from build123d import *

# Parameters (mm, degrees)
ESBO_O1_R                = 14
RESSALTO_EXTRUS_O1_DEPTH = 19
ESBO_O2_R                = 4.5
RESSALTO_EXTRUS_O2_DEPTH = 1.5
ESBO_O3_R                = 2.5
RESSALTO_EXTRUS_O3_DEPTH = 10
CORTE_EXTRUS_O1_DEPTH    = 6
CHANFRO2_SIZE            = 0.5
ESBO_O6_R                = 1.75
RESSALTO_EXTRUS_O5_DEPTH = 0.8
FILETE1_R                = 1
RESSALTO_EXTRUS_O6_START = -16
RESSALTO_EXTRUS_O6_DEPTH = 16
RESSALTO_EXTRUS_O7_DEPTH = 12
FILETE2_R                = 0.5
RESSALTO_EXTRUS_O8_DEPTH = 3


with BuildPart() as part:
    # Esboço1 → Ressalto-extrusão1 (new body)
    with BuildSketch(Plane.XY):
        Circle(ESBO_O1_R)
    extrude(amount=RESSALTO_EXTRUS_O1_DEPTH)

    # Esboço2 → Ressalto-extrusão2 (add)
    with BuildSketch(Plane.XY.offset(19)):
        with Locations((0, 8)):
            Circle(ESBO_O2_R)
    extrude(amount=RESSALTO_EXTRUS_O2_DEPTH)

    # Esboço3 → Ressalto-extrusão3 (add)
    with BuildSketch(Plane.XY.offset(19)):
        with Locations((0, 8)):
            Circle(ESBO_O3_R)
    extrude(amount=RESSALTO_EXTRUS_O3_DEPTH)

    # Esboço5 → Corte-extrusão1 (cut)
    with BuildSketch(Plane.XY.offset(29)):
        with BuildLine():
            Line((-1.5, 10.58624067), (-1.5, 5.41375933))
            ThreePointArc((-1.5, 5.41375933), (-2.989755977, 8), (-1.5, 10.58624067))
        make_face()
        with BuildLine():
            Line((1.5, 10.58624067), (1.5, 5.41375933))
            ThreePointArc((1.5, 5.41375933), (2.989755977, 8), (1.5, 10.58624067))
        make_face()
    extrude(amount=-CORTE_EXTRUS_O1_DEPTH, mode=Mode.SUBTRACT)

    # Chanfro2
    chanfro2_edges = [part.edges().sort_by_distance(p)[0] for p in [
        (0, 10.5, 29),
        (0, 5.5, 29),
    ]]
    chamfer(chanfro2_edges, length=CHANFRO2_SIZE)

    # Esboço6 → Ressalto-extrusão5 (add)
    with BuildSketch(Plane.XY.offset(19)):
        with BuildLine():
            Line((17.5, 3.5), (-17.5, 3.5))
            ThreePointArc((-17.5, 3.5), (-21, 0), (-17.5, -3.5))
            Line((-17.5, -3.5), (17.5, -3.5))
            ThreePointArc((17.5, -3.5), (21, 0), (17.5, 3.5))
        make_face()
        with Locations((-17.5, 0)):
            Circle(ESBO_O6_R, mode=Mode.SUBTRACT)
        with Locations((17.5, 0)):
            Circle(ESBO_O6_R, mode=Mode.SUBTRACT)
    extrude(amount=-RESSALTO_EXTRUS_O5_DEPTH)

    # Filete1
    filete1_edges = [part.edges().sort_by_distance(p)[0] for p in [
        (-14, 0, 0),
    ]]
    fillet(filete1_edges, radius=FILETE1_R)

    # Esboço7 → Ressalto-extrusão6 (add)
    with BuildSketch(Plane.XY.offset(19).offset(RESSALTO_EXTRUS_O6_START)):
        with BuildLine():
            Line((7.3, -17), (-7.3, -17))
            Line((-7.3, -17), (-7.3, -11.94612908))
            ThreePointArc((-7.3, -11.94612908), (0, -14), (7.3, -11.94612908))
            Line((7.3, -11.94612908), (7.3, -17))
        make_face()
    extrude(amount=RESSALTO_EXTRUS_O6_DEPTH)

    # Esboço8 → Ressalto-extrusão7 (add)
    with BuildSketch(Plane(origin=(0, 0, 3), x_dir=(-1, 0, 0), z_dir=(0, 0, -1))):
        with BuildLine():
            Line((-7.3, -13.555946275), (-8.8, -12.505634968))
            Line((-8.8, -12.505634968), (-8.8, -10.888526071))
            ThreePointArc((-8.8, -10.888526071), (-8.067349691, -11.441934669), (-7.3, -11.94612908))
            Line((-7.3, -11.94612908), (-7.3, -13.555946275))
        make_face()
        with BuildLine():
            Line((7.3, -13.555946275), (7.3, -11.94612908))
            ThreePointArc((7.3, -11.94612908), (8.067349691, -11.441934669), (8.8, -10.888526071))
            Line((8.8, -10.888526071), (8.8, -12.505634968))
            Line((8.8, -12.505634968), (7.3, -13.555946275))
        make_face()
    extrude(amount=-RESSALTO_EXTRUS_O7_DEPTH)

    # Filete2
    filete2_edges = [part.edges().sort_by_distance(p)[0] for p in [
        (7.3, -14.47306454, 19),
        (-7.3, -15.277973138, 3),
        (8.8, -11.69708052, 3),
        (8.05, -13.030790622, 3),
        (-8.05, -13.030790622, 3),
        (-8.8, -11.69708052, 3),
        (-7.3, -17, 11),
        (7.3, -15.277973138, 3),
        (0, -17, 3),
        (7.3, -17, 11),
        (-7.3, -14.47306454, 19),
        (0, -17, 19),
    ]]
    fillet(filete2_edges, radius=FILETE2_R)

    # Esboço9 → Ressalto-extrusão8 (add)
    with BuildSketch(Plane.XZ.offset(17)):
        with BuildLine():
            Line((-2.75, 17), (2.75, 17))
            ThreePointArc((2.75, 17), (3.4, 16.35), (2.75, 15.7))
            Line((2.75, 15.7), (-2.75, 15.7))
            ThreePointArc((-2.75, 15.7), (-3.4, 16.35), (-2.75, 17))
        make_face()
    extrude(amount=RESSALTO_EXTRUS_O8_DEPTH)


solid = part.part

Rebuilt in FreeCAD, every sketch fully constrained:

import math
import FreeCAD as App
import Part
import Sketcher
from FreeCAD import Vector
Q = App.Units.Quantity


def edges_at(feature, points):
    """Names of the edges that pass closest to the given points."""
    edges = feature.Shape.Edges
    near = lambda p: min(range(len(edges)), key=lambda i: edges[i].distToShape(Part.Vertex(*p))[0])
    return sorted({f"Edge{near(p) + 1}" for p in points})

doc = App.newDocument("Part")
body = doc.addObject("PartDesign::Body", "Body")

sketch1 = body.newObject("Sketcher::SketchObject", "Sketch")
sketch1.AttachmentSupport = (doc.getObject("XY_Plane"), [""])
sketch1.MapMode = "FlatFace"
sketch1.addGeometry(Part.Circle(Vector(0, 0, 0), Vector(0, 0, 1), 14), False)
sketch1.addConstraint(Sketcher.Constraint("Coincident", 0, 3, -1, 1))
sketch1.addConstraint(Sketcher.Constraint("Diameter", 0, Q("28 mm")))
pad1 = body.newObject("PartDesign::Pad", "Pad")
pad1.Profile = sketch1
pad1.Length = 19

sketch2 = body.newObject("Sketcher::SketchObject", "Sketch001")
sketch2.AttachmentSupport = (doc.getObject("XY_Plane"), [""])
sketch2.MapMode = "FlatFace"
sketch2.AttachmentOffset = App.Placement(Vector(0, 0, 19), App.Rotation())
sketch2.addGeometry(Part.Circle(Vector(0, 8, 0), Vector(0, 0, 1), 4.5), False)
sketch2.addConstraint(Sketcher.Constraint("PointOnObject", 0, 3, -2))
sketch2.addConstraint(Sketcher.Constraint("Diameter", 0, Q("9 mm")))
sketch2.addConstraint(Sketcher.Constraint("DistanceY", -1, 1, 0, 3, Q("8 mm")))
pad2 = body.newObject("PartDesign::Pad", "Pad001")
pad2.Profile = sketch2
pad2.Length = 1.5

sketch3 = body.newObject("Sketcher::SketchObject", "Sketch002")
sketch3.AttachmentSupport = (doc.getObject("XY_Plane"), [""])
sketch3.MapMode = "FlatFace"
sketch3.AttachmentOffset = App.Placement(Vector(0, 0, 19), App.Rotation())
sketch3.addGeometry(Part.Circle(Vector(0, 8, 0), Vector(0, 0, 1), 2.5), False)
sketch3.addConstraint(Sketcher.Constraint("PointOnObject", 0, 3, -2))
sketch3.addConstraint(Sketcher.Constraint("Diameter", 0, Q("5 mm")))
sketch3.addConstraint(Sketcher.Constraint("DistanceY", -1, 1, 0, 3, Q("8 mm")))
pad3 = body.newObject("PartDesign::Pad", "Pad002")
pad3.Profile = sketch3
pad3.Length = 10

sketch4 = body.newObject("Sketcher::SketchObject", "Sketch003")
sketch4.AttachmentSupport = (doc.getObject("XY_Plane"), [""])
sketch4.MapMode = "FlatFace"
sketch4.AttachmentOffset = App.Placement(Vector(0, 0, 29), App.Rotation())
sketch4.addGeometry(Part.LineSegment(Vector(-1.5, 5.413759, 0), Vector(-1.5, 10.586241, 0)), False)
sketch4.addGeometry(Part.ArcOfCircle(Part.Circle(Vector(0, 8, 0), Vector(0, 0, 1), 2.989756), math.radians(120.113408), math.radians(239.886592)), False)
sketch4.addGeometry(Part.LineSegment(Vector(1.5, 10.586241, 0), Vector(1.5, 5.413759, 0)), False)
sketch4.addGeometry(Part.ArcOfCircle(Part.Circle(Vector(0, 8, 0), Vector(0, 0, 1), 2.989756), math.radians(-59.886592), math.radians(59.886592)), False)
sketch4.addConstraint(Sketcher.Constraint("Coincident", 0, 1, 1, 2))
sketch4.addConstraint(Sketcher.Constraint("Coincident", 1, 1, 0, 2))
sketch4.addConstraint(Sketcher.Constraint("Coincident", 2, 1, 3, 2))
sketch4.addConstraint(Sketcher.Constraint("Coincident", 3, 1, 2, 2))
sketch4.addConstraint(Sketcher.Constraint("Vertical", 0))
sketch4.addConstraint(Sketcher.Constraint("Vertical", 2))
sketch4.addConstraint(Sketcher.Constraint("Coincident", 3, 3, 1, 3))
sketch4.addConstraint(Sketcher.Constraint("Equal", 1, 3))
sketch4.addConstraint(Sketcher.Constraint("Symmetric", 1, 1, 2, 1, -2))
sketch4.addConstraint(Sketcher.Constraint("DistanceY", -1, 1, 1, 3, Q("8 mm")))
sketch4.addConstraint(Sketcher.Constraint("DistanceX", 1, 1, 2, 1, Q("3 mm")))
sketch4.addConstraint(Sketcher.Constraint("Radius", 1, Q("2.989756 mm")))
pocket1 = body.newObject("PartDesign::Pocket", "Pocket")
pocket1.Profile = sketch4
pocket1.Length = 6
doc.recompute()

chamfer = body.newObject("PartDesign::Chamfer", "Chamfer")
chamfer.Base = (pocket1, edges_at(pocket1, [(0, 10.5, 29), (0, 5.5, 29)]))
chamfer.Size = 0.5

sketch5 = body.newObject("Sketcher::SketchObject", "Sketch004")
sketch5.AttachmentSupport = (doc.getObject("XY_Plane"), [""])
sketch5.MapMode = "FlatFace"
sketch5.AttachmentOffset = App.Placement(Vector(0, 0, 19), App.Rotation())
sketch5.addGeometry(Part.LineSegment(Vector(17.5, 3.5, 0), Vector(-17.5, 3.5, 0)), False)
sketch5.addGeometry(Part.ArcOfCircle(Part.Circle(Vector(-17.5, 0, 0), Vector(0, 0, 1), 3.5), math.radians(90), math.radians(270)), False)
sketch5.addGeometry(Part.LineSegment(Vector(-17.5, -3.5, 0), Vector(17.5, -3.5, 0)), False)
sketch5.addGeometry(Part.ArcOfCircle(Part.Circle(Vector(17.5, 0, 0), Vector(0, 0, 1), 3.5), math.radians(-90), math.radians(90)), False)
sketch5.addGeometry(Part.Circle(Vector(-17.5, 0, 0), Vector(0, 0, 1), 1.75), False)
sketch5.addGeometry(Part.Circle(Vector(17.5, 0, 0), Vector(0, 0, 1), 1.75), False)
sketch5.addConstraint(Sketcher.Constraint("Tangent", 0, 2, 1, 1))
sketch5.addConstraint(Sketcher.Constraint("Tangent", 1, 2, 2, 1))
sketch5.addConstraint(Sketcher.Constraint("Tangent", 2, 2, 3, 1))
sketch5.addConstraint(Sketcher.Constraint("Tangent", 3, 2, 0, 1))
sketch5.addConstraint(Sketcher.Constraint("Horizontal", 0))
sketch5.addConstraint(Sketcher.Constraint("Horizontal", 2))
sketch5.addConstraint(Sketcher.Constraint("Coincident", 4, 3, 1, 3))
sketch5.addConstraint(Sketcher.Constraint("Coincident", 5, 3, 3, 3))
sketch5.addConstraint(Sketcher.Constraint("Equal", 4, 5))
sketch5.addConstraint(Sketcher.Constraint("Symmetric", 1, 3, 3, 3, -1, 1))
sketch5.addConstraint(Sketcher.Constraint("Diameter", 4, Q("3.5 mm")))
sketch5.addConstraint(Sketcher.Constraint("Radius", 1, Q("3.5 mm")))
sketch5.addConstraint(Sketcher.Constraint("DistanceX", 0, 2, 0, 1, Q("35 mm")))
pad4 = body.newObject("PartDesign::Pad", "Pad003")
pad4.Profile = sketch5
pad4.Length = 0.8
pad4.Reversed = True
doc.recompute()

fillet = body.newObject("PartDesign::Fillet", "Fillet")
fillet.Base = (pad4, edges_at(pad4, [(-14, 0, 0)]))
fillet.Radius = 1

sketch6 = body.newObject("Sketcher::SketchObject", "Sketch005")
sketch6.AttachmentSupport = (doc.getObject("XY_Plane"), [""])
sketch6.MapMode = "FlatFace"
sketch6.AttachmentOffset = App.Placement(Vector(0, 0, 3), App.Rotation())
sketch6.addGeometry(Part.LineSegment(Vector(-7.3, -17, 0), Vector(7.3, -17, 0)), False)
sketch6.addGeometry(Part.LineSegment(Vector(7.3, -17, 0), Vector(7.3, -11.946129, 0)), False)
sketch6.addGeometry(Part.ArcOfCircle(Part.Circle(Vector(0, 0, 0), Vector(0, 0, 1), 14), math.radians(-121.428126), math.radians(-58.571874)), False)
sketch6.addGeometry(Part.LineSegment(Vector(-7.3, -11.946129, 0), Vector(-7.3, -17, 0)), False)
sketch6.addConstraint(Sketcher.Constraint("Coincident", 0, 2, 1, 1))
sketch6.addConstraint(Sketcher.Constraint("Coincident", 1, 2, 2, 2))
sketch6.addConstraint(Sketcher.Constraint("Coincident", 2, 1, 3, 1))
sketch6.addConstraint(Sketcher.Constraint("Coincident", 3, 2, 0, 1))
sketch6.addConstraint(Sketcher.Constraint("Horizontal", 0))
sketch6.addConstraint(Sketcher.Constraint("Vertical", 1))
sketch6.addConstraint(Sketcher.Constraint("Vertical", 3))
sketch6.addConstraint(Sketcher.Constraint("Coincident", 2, 3, -1, 1))
sketch6.addConstraint(Sketcher.Constraint("Horizontal", 1, 2, 2, 1))
sketch6.addConstraint(Sketcher.Constraint("Radius", 2, Q("14 mm")))
sketch6.addConstraint(Sketcher.Constraint("DistanceX", 0, 1, 0, 2, Q("14.6 mm")))
sketch6.addConstraint(Sketcher.Constraint("DistanceY", 0, 2, -1, 1, Q("17 mm")))
pad5 = body.newObject("PartDesign::Pad", "Pad004")
pad5.Profile = sketch6
pad5.Length = 16

sketch7 = body.newObject("Sketcher::SketchObject", "Sketch006")
sketch7.AttachmentSupport = (doc.getObject("XY_Plane"), [""])
sketch7.MapMode = "FlatFace"
sketch7.AttachmentOffset = App.Placement(Vector(0, 0, 3), App.Rotation())
sketch7.addGeometry(Part.LineSegment(Vector(8.8, -12.505635, 0), Vector(7.3, -13.555946, 0)), False)
sketch7.addGeometry(Part.LineSegment(Vector(7.3, -13.555946, 0), Vector(7.3, -11.946129, 0)), False)
sketch7.addGeometry(Part.ArcOfCircle(Part.Circle(Vector(0, 0, 0), Vector(0, 0, 1), 14), math.radians(-58.571874), math.radians(-51.055196)), False)
sketch7.addGeometry(Part.LineSegment(Vector(8.8, -10.888526, 0), Vector(8.8, -12.505635, 0)), False)
sketch7.addGeometry(Part.LineSegment(Vector(-7.3, -11.946129, 0), Vector(-7.3, -13.555946, 0)), False)
sketch7.addGeometry(Part.LineSegment(Vector(-7.3, -13.555946, 0), Vector(-8.8, -12.505635, 0)), False)
sketch7.addGeometry(Part.LineSegment(Vector(-8.8, -12.505635, 0), Vector(-8.8, -10.888526, 0)), False)
sketch7.addGeometry(Part.ArcOfCircle(Part.Circle(Vector(0, 0, 0), Vector(0, 0, 1), 14), math.radians(-128.944804), math.radians(-121.428126)), False)
sketch7.addConstraint(Sketcher.Constraint("Coincident", 0, 2, 1, 1))
sketch7.addConstraint(Sketcher.Constraint("Coincident", 1, 2, 2, 1))
sketch7.addConstraint(Sketcher.Constraint("Coincident", 2, 2, 3, 1))
sketch7.addConstraint(Sketcher.Constraint("Coincident", 3, 2, 0, 1))
sketch7.addConstraint(Sketcher.Constraint("Coincident", 4, 2, 5, 1))
sketch7.addConstraint(Sketcher.Constraint("Coincident", 5, 2, 6, 1))
sketch7.addConstraint(Sketcher.Constraint("Coincident", 6, 2, 7, 1))
sketch7.addConstraint(Sketcher.Constraint("Coincident", 7, 2, 4, 1))
sketch7.addConstraint(Sketcher.Constraint("Vertical", 1))
sketch7.addConstraint(Sketcher.Constraint("Vertical", 3))
sketch7.addConstraint(Sketcher.Constraint("Vertical", 4))
sketch7.addConstraint(Sketcher.Constraint("Vertical", 6))
sketch7.addConstraint(Sketcher.Constraint("Coincident", 2, 3, -1, 1))
sketch7.addConstraint(Sketcher.Constraint("Coincident", 7, 3, -1, 1))
sketch7.addConstraint(Sketcher.Constraint("Equal", 2, 7))
sketch7.addConstraint(Sketcher.Constraint("Symmetric", 0, 2, 4, 2, -2))
sketch7.addConstraint(Sketcher.Constraint("Symmetric", 3, 2, 5, 2, -2))
sketch7.addConstraint(Sketcher.Constraint("Radius", 2, Q("14 mm")))
sketch7.addConstraint(Sketcher.Constraint("Angle", 0, Q("-145 deg")))
sketch7.addConstraint(Sketcher.Constraint("DistanceX", -1, 1, 0, 2, Q("7.3 mm")))
sketch7.addConstraint(Sketcher.Constraint("DistanceX", -1, 1, 2, 2, Q("8.8 mm")))
sketch7.addConstraint(Sketcher.Constraint("DistanceY", 3, 2, 3, 1, Q("1.617109 mm")))
pad6 = body.newObject("PartDesign::Pad", "Pad005")
pad6.Profile = sketch7
pad6.Length = 12
doc.recompute()

fillet2 = body.newObject("PartDesign::Fillet", "Fillet001")
fillet2.Base = (pad6, edges_at(pad6, [
    (7.3, -14.473, 19),
    (-7.3, -15.278, 3),
    (8.8, -11.697, 3),
    (8.05, -13.031, 3),
    (-8.05, -13.031, 3),
    (-8.8, -11.697, 3),
    (-7.3, -17, 11),
    (7.3, -15.278, 3),
    (0, -17, 3),
    (7.3, -17, 11),
    (-7.3, -14.473, 19),
    (0, -17, 19),
]))
fillet2.Radius = 0.5

sketch8 = body.newObject("Sketcher::SketchObject", "Sketch007")
sketch8.AttachmentSupport = (doc.getObject("XZ_Plane"), [""])
sketch8.MapMode = "FlatFace"
sketch8.AttachmentOffset = App.Placement(Vector(0, 0, 17), App.Rotation())
sketch8.addGeometry(Part.LineSegment(Vector(2.75, 17, 0), Vector(-2.75, 17, 0)), False)
sketch8.addGeometry(Part.ArcOfCircle(Part.Circle(Vector(-2.75, 16.35, 0), Vector(0, 0, 1), 0.65), math.radians(90), math.radians(270)), False)
sketch8.addGeometry(Part.LineSegment(Vector(-2.75, 15.7, 0), Vector(2.75, 15.7, 0)), False)
sketch8.addGeometry(Part.ArcOfCircle(Part.Circle(Vector(2.75, 16.35, 0), Vector(0, 0, 1), 0.65), math.radians(-90), math.radians(90)), False)
sketch8.addConstraint(Sketcher.Constraint("Tangent", 0, 2, 1, 1))
sketch8.addConstraint(Sketcher.Constraint("Tangent", 1, 2, 2, 1))
sketch8.addConstraint(Sketcher.Constraint("Tangent", 2, 2, 3, 1))
sketch8.addConstraint(Sketcher.Constraint("Tangent", 3, 2, 0, 1))
sketch8.addConstraint(Sketcher.Constraint("Horizontal", 0))
sketch8.addConstraint(Sketcher.Constraint("Horizontal", 2))
sketch8.addConstraint(Sketcher.Constraint("Radius", 1, Q("0.65 mm")))
sketch8.addConstraint(Sketcher.Constraint("DistanceX", 0, 2, 0, 1, Q("5.5 mm")))
sketch8.addConstraint(Sketcher.Constraint("DistanceY", -1, 1, 0, 2, Q("17 mm")))
sketch8.addConstraint(Sketcher.Constraint("DistanceX", 1, 3, -1, 1, Q("2.75 mm")))
pad7 = body.newObject("PartDesign::Pad", "Pad006")
pad7.Profile = sketch8
pad7.Length = 3

doc.recompute()
